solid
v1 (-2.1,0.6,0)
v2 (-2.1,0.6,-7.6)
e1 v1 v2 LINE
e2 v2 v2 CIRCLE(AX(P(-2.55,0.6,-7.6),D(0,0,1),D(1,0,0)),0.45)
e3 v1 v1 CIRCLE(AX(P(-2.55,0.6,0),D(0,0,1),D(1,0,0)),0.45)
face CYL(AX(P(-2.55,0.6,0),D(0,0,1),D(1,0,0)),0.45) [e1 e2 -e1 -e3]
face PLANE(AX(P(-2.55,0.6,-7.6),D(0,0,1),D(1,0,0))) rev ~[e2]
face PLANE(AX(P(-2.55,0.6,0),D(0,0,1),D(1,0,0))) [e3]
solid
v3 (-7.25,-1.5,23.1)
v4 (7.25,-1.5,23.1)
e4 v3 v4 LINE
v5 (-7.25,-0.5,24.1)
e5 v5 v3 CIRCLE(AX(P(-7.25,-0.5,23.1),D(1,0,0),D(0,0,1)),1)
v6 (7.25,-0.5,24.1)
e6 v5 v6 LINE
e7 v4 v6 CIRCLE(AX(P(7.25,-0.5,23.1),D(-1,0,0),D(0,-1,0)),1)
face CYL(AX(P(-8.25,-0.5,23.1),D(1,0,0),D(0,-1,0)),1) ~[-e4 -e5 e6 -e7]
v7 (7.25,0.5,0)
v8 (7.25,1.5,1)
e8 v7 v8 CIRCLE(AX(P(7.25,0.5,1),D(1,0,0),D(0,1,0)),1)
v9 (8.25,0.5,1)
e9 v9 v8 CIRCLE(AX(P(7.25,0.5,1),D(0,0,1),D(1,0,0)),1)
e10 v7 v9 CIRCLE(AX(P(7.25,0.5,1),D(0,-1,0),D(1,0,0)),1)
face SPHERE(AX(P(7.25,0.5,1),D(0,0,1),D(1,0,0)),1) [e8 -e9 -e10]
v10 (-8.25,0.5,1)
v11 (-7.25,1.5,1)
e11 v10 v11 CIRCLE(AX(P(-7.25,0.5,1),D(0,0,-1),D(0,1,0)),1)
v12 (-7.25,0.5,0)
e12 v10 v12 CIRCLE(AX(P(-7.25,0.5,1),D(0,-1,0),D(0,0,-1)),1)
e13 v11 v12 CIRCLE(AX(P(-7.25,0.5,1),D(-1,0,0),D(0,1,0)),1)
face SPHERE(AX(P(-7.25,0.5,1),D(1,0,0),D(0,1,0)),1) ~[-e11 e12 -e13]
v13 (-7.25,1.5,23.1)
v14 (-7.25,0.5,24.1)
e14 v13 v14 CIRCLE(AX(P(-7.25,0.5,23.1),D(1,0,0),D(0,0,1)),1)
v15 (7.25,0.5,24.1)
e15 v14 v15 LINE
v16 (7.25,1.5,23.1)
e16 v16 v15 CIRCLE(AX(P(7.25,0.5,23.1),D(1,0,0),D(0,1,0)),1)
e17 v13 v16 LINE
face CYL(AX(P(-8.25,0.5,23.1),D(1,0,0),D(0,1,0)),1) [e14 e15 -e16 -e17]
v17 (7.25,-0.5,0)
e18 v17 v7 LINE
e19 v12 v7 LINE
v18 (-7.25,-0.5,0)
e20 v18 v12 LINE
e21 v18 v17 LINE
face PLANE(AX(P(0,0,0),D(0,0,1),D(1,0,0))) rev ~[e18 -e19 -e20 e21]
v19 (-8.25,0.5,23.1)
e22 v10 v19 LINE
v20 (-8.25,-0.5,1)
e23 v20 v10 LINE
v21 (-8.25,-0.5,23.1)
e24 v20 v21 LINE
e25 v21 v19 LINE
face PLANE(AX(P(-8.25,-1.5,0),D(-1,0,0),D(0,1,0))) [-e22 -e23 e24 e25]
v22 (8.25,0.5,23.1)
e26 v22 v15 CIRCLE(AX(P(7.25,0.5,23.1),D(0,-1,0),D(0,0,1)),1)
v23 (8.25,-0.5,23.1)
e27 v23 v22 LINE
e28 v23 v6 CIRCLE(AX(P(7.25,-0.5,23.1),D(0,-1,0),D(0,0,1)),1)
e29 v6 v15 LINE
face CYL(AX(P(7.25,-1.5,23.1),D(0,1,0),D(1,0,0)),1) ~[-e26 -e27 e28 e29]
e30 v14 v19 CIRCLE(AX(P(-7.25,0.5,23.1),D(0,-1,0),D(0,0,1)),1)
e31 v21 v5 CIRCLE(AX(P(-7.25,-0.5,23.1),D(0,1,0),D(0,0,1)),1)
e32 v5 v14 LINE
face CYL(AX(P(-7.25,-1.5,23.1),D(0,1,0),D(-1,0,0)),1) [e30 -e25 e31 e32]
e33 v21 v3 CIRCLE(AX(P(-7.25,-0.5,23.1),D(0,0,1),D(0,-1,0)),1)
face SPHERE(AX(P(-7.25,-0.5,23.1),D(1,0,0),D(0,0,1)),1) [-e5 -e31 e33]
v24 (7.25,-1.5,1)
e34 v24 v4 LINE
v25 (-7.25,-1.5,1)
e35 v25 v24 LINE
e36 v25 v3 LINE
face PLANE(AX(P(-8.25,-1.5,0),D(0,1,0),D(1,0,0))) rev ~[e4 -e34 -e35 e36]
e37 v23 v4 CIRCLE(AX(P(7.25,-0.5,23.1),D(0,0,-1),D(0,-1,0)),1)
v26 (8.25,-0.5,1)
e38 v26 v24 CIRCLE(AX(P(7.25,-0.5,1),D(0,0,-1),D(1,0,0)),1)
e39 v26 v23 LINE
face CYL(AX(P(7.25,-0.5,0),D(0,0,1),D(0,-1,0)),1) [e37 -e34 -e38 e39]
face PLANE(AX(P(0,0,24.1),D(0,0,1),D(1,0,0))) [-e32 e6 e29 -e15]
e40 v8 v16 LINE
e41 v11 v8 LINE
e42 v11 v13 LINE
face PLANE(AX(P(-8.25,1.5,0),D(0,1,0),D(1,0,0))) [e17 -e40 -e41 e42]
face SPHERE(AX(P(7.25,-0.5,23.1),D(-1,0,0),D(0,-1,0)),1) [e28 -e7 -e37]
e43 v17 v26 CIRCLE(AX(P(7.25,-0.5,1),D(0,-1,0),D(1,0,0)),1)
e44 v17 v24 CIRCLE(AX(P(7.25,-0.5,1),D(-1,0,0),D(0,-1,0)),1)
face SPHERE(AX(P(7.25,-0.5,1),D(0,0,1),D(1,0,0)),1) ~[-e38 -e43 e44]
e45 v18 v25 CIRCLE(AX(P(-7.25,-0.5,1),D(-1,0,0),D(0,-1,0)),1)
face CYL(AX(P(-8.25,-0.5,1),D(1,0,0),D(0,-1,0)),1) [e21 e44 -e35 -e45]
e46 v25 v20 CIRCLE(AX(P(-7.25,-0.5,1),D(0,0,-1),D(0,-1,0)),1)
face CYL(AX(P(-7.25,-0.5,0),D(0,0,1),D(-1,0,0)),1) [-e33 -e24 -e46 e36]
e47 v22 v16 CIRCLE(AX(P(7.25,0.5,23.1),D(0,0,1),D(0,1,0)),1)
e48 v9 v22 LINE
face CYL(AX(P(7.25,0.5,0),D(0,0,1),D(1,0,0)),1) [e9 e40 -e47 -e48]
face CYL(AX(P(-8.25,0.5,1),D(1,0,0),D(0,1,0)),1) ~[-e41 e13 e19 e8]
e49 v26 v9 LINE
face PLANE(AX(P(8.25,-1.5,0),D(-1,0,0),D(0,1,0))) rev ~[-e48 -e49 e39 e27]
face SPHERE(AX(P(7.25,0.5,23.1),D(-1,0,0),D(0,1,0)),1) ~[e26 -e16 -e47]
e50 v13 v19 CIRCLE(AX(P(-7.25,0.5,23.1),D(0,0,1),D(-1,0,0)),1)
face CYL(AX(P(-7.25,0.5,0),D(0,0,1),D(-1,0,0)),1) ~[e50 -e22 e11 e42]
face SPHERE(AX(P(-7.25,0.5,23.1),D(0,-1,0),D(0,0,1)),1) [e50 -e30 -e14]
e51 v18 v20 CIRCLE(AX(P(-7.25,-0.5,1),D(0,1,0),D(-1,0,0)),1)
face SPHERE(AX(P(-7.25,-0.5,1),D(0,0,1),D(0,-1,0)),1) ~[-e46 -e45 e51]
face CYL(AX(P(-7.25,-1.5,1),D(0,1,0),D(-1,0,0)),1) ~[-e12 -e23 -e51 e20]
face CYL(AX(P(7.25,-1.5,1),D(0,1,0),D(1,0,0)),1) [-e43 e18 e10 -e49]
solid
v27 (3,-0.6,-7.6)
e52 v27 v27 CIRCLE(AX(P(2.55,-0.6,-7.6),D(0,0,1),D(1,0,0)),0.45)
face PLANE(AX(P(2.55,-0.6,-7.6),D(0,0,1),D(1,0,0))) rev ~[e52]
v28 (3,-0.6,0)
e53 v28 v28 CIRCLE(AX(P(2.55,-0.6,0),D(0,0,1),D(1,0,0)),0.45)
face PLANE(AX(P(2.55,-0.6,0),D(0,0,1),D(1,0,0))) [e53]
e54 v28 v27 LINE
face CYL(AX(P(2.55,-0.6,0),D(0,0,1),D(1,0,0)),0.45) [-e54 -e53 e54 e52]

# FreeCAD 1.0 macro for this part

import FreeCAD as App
import Part
import Sketcher
Q = App.Units.Quantity

doc = App.newDocument("Part")
body = doc.addObject("PartDesign::Body", "Body")
body.AllowCompound = True

sketch1 = doc.addObject("Sketcher::SketchObject", "Sketch")
body.addObject(sketch1)
sketch1.AttachmentSupport = (doc.XY_Plane, [""])
sketch1.MapMode = "FlatFace"
sketch1.addGeometry(Part.Circle(App.Vector(2.55, -0.6, 0), App.Vector(0, 0, 1), 0.45), False)
sketch1.addGeometry(Part.Circle(App.Vector(-2.55, 0.6, 0), App.Vector(0, 0, 1), 0.45), False)
sketch1.addConstraint(Sketcher.Constraint("Equal", 0, 1))
sketch1.addConstraint(Sketcher.Constraint("Symmetric", 0, 3, 1, 3, -1, 1))
sketch1.addConstraint(Sketcher.Constraint("Diameter", 0, Q("0.9 mm")))
sketch1.addConstraint(Sketcher.Constraint("DistanceY", 0, 3, -1, 1, Q("0.6 mm")))
sketch1.addConstraint(Sketcher.Constraint("DistanceX", 1, 3, 0, 3, Q("5.1 mm")))
pad1 = doc.addObject("PartDesign::Pad", "Pad")
body.addObject(pad1)
pad1.Profile = sketch1
pad1.Length = 7.6
pad1.Reversed = True
body2 = doc.addObject("PartDesign::Body", "Body001")

sketch2 = doc.addObject("Sketcher::SketchObject", "Sketch001")
body2.addObject(sketch2)
sketch2.AttachmentSupport = (doc.getObject("XY_Plane001"), [""])
sketch2.MapMode = "FlatFace"
sketch2.addGeometry(Part.LineSegment(App.Vector(-8.2, 1.5, 0), App.Vector(-8.2, -1.5, 0)), False)
sketch2.addGeometry(Part.LineSegment(App.Vector(-8.2, -1.5, 0), App.Vector(8.2, -1.5, 0)), False)
sketch2.addGeometry(Part.LineSegment(App.Vector(8.2, -1.5, 0), App.Vector(8.2, 1.5, 0)), False)
sketch2.addGeometry(Part.LineSegment(App.Vector(8.2, 1.5, 0), App.Vector(-8.2, 1.5, 0)), False)
sketch2.addConstraint(Sketcher.Constraint("Coincident", 0, 2, 1, 1))
sketch2.addConstraint(Sketcher.Constraint("Coincident", 1, 2, 2, 1))
sketch2.addConstraint(Sketcher.Constraint("Coincident", 2, 2, 3, 1))
sketch2.addConstraint(Sketcher.Constraint("Coincident", 3, 2, 0, 1))
sketch2.addConstraint(Sketcher.Constraint("Vertical", 0))
sketch2.addConstraint(Sketcher.Constraint("Horizontal", 1))
sketch2.addConstraint(Sketcher.Constraint("Vertical", 2))
sketch2.addConstraint(Sketcher.Constraint("Horizontal", 3))
sketch2.addConstraint(Sketcher.Constraint("Symmetric", 0, 2, 2, 2, -1, 1))
sketch2.addConstraint(Sketcher.Constraint("DistanceY", 0, 2, 0, 1, Q("3 mm")))
sketch2.addConstraint(Sketcher.Constraint("DistanceX", 1, 1, 1, 2, Q("16.5 mm")))
pad2 = doc.addObject("PartDesign::Pad", "Pad001")
body2.addObject(pad2)
pad2.Profile = sketch2
pad2.Length = 24.1
doc.recompute()

fillet = doc.addObject("PartDesign::Fillet", "Fillet")
body2.addObject(fillet)
fillet.Base = (pad2, ["Edge1"])
fillet.UseAllEdges = True
fillet.Radius = 1

doc.recompute()
